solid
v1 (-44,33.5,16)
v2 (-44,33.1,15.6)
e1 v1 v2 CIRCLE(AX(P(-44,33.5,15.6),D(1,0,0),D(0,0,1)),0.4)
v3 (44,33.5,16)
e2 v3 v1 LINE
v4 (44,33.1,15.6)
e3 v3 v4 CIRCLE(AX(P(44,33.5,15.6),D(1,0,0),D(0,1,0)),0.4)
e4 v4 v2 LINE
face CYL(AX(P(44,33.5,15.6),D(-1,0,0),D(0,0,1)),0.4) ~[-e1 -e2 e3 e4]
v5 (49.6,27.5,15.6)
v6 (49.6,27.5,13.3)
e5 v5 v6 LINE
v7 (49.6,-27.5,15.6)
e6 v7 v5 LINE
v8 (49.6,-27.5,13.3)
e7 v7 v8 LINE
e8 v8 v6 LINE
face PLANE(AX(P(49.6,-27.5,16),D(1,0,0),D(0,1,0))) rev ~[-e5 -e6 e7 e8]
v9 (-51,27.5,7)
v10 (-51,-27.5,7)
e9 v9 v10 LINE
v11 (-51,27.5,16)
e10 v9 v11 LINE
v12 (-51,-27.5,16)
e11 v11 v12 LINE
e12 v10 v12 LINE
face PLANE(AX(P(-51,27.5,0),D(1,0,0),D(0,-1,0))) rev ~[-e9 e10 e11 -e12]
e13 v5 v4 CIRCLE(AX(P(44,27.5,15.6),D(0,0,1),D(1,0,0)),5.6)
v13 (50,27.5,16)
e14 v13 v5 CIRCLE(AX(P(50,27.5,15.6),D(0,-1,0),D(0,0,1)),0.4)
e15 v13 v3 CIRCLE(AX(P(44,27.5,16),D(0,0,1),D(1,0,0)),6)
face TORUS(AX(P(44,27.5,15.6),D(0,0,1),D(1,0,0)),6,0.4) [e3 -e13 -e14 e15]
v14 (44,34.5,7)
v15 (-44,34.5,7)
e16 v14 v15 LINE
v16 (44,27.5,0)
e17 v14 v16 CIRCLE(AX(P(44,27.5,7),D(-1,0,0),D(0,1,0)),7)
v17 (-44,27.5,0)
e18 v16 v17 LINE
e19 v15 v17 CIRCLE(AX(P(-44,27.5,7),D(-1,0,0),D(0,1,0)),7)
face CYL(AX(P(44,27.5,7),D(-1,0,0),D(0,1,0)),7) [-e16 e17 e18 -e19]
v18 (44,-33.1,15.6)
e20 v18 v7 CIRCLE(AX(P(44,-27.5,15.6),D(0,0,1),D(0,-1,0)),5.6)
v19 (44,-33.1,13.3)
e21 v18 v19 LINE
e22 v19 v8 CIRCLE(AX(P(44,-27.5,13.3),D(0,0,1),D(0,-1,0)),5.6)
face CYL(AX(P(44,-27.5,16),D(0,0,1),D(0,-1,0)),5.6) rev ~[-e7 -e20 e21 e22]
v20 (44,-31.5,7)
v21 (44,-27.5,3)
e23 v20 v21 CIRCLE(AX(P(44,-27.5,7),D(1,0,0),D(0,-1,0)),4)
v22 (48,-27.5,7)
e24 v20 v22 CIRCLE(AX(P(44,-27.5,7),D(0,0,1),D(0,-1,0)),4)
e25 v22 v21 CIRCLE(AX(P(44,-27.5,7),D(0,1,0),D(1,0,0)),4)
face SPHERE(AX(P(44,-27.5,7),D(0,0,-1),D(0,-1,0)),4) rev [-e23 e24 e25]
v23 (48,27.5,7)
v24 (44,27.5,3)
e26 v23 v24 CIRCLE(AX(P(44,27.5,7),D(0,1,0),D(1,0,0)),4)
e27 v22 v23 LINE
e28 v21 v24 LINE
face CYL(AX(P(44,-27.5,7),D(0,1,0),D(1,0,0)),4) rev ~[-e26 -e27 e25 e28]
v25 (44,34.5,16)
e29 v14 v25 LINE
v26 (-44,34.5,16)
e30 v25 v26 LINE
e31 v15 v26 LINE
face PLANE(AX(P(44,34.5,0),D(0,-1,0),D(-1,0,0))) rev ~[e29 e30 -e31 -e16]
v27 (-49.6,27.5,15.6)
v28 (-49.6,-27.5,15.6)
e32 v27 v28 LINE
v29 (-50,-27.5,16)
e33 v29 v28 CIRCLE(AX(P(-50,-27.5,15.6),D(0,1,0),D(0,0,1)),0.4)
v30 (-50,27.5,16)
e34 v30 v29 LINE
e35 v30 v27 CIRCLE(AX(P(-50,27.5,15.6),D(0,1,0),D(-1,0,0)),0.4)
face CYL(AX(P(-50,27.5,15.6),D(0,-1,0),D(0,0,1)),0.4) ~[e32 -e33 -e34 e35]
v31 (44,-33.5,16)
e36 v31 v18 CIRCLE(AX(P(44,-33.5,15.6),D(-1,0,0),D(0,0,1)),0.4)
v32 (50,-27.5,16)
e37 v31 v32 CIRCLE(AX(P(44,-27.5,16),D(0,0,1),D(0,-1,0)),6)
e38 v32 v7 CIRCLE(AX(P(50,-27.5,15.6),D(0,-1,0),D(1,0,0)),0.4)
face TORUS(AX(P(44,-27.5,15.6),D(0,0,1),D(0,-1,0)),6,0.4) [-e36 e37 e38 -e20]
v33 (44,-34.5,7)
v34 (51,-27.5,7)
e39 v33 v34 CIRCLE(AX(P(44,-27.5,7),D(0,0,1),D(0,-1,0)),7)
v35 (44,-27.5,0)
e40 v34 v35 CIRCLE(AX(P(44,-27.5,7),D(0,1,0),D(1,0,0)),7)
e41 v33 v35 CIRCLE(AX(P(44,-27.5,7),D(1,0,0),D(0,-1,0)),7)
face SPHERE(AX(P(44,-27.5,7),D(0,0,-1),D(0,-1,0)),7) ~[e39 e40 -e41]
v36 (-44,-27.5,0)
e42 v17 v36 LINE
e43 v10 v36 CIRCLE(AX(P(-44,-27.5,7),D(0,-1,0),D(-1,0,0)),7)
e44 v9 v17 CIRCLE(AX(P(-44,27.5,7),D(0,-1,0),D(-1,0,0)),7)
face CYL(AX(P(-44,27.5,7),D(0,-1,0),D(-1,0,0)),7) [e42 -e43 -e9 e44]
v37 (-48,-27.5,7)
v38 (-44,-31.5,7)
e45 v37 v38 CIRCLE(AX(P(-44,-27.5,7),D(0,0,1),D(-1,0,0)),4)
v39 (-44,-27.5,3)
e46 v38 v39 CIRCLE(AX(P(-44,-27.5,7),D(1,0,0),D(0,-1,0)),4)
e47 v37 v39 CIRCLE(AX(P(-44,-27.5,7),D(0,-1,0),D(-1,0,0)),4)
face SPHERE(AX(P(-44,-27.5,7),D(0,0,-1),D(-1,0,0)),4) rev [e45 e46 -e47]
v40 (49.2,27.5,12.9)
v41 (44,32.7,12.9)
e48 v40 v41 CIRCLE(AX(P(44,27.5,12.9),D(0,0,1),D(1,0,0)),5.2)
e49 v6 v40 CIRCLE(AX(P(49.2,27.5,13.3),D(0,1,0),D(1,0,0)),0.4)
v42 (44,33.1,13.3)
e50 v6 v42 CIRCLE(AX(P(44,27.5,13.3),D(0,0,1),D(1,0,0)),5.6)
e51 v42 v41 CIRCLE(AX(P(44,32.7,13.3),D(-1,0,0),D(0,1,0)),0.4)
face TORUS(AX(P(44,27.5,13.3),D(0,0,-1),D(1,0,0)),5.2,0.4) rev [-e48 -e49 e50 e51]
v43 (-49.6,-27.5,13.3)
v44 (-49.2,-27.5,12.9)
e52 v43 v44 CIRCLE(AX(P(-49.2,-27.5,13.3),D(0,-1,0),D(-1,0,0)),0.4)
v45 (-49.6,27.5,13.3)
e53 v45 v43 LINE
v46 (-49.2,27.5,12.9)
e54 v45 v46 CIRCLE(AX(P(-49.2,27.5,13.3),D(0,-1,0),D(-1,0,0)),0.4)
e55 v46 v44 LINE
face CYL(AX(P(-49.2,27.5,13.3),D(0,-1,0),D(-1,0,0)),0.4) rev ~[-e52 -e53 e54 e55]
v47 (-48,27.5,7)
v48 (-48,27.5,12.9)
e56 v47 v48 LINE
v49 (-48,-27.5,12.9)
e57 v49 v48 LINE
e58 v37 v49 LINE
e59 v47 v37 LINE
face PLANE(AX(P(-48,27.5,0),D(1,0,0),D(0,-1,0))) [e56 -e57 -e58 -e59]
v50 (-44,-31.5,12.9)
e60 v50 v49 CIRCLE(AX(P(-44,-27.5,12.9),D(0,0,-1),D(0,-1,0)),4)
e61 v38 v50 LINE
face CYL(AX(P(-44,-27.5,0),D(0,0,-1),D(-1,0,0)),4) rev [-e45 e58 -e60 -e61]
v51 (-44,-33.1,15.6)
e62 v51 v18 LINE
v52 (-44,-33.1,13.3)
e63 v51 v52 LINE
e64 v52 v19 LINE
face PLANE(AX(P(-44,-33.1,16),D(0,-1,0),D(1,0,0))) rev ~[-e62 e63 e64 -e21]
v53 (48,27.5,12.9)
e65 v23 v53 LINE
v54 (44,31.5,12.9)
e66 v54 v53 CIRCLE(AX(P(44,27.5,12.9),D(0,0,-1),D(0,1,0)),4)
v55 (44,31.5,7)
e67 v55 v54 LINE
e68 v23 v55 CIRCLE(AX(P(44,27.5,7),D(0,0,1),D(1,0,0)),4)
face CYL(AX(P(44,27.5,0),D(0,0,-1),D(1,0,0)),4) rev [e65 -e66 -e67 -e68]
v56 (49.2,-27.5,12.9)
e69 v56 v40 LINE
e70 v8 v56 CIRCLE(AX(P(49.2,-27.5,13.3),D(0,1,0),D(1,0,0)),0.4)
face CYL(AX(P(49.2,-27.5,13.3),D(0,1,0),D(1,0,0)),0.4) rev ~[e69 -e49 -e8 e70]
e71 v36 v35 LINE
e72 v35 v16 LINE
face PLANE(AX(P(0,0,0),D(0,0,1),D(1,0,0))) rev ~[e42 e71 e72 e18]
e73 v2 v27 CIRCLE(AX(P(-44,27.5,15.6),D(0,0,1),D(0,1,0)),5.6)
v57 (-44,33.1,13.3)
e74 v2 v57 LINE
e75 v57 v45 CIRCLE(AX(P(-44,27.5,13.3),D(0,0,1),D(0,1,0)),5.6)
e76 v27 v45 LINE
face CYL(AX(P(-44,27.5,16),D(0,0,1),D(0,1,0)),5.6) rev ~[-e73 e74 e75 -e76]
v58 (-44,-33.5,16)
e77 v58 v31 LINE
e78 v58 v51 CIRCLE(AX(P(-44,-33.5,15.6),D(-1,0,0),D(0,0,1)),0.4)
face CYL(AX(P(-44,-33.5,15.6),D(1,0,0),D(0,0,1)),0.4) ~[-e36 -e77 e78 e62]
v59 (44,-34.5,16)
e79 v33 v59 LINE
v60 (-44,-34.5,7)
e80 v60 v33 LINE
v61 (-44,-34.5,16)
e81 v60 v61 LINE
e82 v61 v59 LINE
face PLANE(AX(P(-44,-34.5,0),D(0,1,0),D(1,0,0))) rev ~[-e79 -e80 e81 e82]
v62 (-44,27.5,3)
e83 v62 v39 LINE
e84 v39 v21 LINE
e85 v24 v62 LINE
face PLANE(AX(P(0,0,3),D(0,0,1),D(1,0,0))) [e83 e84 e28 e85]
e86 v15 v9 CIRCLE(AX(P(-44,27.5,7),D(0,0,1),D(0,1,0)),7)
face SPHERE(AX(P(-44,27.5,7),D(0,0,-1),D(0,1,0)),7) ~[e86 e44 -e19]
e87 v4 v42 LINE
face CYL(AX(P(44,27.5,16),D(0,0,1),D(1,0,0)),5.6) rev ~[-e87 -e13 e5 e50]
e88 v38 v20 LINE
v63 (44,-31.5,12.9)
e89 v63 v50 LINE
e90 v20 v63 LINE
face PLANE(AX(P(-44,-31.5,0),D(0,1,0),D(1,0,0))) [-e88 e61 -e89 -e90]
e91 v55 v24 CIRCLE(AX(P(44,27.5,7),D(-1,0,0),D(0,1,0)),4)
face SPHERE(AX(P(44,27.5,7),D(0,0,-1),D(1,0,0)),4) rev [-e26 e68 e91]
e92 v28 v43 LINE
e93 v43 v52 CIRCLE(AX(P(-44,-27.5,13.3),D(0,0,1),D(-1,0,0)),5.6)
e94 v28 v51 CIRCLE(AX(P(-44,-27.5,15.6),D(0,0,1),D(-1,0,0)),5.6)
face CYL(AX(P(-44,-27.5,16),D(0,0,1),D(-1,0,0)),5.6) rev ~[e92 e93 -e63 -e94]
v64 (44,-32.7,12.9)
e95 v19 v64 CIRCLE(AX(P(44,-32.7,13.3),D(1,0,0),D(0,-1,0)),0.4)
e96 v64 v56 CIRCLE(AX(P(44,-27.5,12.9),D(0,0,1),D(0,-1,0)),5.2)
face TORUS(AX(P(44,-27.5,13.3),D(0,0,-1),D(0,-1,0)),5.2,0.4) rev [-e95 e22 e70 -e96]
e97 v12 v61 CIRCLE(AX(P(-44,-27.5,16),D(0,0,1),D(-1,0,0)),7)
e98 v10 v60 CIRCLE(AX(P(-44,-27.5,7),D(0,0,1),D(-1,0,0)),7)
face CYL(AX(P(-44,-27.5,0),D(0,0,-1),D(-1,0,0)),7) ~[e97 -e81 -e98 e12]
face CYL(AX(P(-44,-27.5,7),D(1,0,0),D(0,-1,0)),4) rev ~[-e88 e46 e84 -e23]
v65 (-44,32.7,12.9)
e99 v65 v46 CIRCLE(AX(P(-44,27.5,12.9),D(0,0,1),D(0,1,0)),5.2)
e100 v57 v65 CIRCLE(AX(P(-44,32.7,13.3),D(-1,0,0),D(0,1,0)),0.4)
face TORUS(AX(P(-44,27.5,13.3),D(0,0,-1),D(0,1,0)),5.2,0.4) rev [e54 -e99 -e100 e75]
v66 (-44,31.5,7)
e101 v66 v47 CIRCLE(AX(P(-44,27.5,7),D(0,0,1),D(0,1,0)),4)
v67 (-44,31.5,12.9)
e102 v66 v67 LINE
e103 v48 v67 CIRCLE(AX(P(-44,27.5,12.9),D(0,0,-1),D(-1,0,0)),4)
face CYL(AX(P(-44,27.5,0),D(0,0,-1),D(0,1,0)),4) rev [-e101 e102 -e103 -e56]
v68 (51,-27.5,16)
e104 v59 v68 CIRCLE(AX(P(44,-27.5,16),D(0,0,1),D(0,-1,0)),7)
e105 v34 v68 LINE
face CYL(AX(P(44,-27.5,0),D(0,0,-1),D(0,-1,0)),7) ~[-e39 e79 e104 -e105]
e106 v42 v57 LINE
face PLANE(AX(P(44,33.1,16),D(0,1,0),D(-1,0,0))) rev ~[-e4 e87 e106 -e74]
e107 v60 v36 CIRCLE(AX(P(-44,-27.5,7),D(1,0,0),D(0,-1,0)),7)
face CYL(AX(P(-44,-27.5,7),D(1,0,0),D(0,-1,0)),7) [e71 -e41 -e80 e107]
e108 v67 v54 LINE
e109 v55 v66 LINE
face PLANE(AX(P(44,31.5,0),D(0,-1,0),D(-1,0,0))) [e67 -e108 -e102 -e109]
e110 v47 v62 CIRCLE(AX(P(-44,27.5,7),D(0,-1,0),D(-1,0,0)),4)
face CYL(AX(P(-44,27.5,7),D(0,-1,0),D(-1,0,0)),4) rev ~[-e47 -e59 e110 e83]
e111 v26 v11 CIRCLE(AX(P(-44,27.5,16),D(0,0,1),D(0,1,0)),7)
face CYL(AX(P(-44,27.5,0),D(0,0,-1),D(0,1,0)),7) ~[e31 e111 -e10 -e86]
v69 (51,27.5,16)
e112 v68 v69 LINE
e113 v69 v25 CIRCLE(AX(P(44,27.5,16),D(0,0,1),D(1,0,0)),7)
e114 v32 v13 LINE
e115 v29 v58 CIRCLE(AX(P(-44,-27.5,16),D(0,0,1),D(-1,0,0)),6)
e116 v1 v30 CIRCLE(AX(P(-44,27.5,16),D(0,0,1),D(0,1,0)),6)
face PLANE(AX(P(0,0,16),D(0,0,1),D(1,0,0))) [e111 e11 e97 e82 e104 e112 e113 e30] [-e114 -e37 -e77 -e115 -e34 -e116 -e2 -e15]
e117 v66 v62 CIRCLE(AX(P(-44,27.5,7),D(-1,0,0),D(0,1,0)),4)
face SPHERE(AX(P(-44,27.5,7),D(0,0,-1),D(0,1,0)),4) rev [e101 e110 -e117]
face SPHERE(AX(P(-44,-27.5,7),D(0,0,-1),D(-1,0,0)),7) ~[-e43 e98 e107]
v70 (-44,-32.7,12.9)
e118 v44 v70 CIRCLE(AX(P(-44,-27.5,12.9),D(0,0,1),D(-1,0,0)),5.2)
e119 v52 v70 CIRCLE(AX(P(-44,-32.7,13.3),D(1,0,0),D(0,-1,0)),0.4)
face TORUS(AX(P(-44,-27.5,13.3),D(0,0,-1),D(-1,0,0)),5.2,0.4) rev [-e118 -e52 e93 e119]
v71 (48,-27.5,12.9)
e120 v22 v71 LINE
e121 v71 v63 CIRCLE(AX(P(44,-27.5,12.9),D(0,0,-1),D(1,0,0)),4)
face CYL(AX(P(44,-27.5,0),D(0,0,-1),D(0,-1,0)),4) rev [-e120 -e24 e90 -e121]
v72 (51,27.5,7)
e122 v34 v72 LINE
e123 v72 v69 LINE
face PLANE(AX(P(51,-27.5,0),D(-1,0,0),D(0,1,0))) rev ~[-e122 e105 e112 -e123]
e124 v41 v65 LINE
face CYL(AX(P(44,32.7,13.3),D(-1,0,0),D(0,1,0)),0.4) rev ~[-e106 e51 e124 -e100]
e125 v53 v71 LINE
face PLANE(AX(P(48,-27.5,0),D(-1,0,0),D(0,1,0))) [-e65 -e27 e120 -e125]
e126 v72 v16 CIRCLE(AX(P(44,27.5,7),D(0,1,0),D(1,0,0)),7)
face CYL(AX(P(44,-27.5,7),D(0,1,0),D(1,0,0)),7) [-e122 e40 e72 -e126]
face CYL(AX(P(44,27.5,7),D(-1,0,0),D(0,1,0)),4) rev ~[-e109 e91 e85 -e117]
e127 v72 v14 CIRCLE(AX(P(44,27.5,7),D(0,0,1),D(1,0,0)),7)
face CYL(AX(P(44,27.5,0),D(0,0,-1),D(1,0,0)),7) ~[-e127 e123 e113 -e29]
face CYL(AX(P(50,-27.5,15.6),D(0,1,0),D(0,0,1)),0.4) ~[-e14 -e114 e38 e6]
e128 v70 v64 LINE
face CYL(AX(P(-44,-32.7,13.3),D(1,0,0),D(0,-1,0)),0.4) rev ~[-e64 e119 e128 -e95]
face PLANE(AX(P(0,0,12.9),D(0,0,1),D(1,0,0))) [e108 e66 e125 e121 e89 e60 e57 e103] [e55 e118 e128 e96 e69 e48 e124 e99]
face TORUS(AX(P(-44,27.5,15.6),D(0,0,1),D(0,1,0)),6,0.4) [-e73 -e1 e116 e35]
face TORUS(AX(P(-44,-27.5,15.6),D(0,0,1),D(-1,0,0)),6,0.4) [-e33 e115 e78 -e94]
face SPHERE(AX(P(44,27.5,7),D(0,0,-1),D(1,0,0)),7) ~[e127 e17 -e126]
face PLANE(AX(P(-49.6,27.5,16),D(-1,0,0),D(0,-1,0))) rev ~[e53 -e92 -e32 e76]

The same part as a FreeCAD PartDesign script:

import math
import FreeCAD as App
import Part
import Sketcher
from FreeCAD import Vector
Q = App.Units.Quantity


def edges_at(feature, points):
    """Names of the edges that pass closest to the given points."""
    edges = feature.Shape.Edges
    near = lambda p: min(range(len(edges)), key=lambda i: edges[i].distToShape(Part.Vertex(*p))[0])
    return sorted({f"Edge{near(p) + 1}" for p in points})


def faces_at(feature, points):
    """Names of the faces that lie closest to the given points."""
    faces = feature.Shape.Faces
    near = lambda p: min(range(len(faces)), key=lambda i: faces[i].distToShape(Part.Vertex(*p))[0])
    return sorted({f"Face{near(p) + 1}" for p in points})

doc = App.newDocument("Part")
body = doc.addObject("PartDesign::Body", "Body")

sketch1 = body.newObject("Sketcher::SketchObject", "Sketch")
sketch1.AttachmentSupport = (doc.getObject("XY_Plane"), [""])
sketch1.MapMode = "FlatFace"
sketch1.addGeometry(Part.LineSegment(Vector(-44, -34, 0), Vector(44, -34, 0)), False)
sketch1.addGeometry(Part.ArcOfCircle(Part.Circle(Vector(44, -28, 0), Vector(0, 0, 1), 7), math.radians(-90), math.radians(0)), False)
sketch1.addGeometry(Part.LineSegment(Vector(51, -28, 0), Vector(51, 28, 0)), False)
sketch1.addGeometry(Part.ArcOfCircle(Part.Circle(Vector(44, 28, 0), Vector(0, 0, 1), 7), math.radians(0), math.radians(90)), False)
sketch1.addGeometry(Part.LineSegment(Vector(44, 34, 0), Vector(-44, 34, 0)), False)
sketch1.addGeometry(Part.ArcOfCircle(Part.Circle(Vector(-44, 28, 0), Vector(0, 0, 1), 7), math.radians(90), math.radians(180)), False)
sketch1.addGeometry(Part.LineSegment(Vector(-51, 28, 0), Vector(-51, -28, 0)), False)
sketch1.addGeometry(Part.ArcOfCircle(Part.Circle(Vector(-44, -28, 0), Vector(0, 0, 1), 7), math.radians(180), math.radians(270)), False)
sketch1.addConstraint(Sketcher.Constraint("Tangent", 0, 2, 1, 1))
sketch1.addConstraint(Sketcher.Constraint("Tangent", 1, 2, 2, 1))
sketch1.addConstraint(Sketcher.Constraint("Tangent", 2, 2, 3, 1))
sketch1.addConstraint(Sketcher.Constraint("Tangent", 3, 2, 4, 1))
sketch1.addConstraint(Sketcher.Constraint("Tangent", 4, 2, 5, 1))
sketch1.addConstraint(Sketcher.Constraint("Tangent", 5, 2, 6, 1))
sketch1.addConstraint(Sketcher.Constraint("Tangent", 6, 2, 7, 1))
sketch1.addConstraint(Sketcher.Constraint("Tangent", 7, 2, 0, 1))
sketch1.addConstraint(Sketcher.Constraint("Horizontal", 0))
sketch1.addConstraint(Sketcher.Constraint("Vertical", 2))
sketch1.addConstraint(Sketcher.Constraint("Horizontal", 4))
sketch1.addConstraint(Sketcher.Constraint("Vertical", 6))
sketch1.addConstraint(Sketcher.Constraint("Equal", 1, 3))
sketch1.addConstraint(Sketcher.Constraint("Equal", 3, 5))
sketch1.addConstraint(Sketcher.Constraint("Equal", 5, 7))
sketch1.addConstraint(Sketcher.Constraint("Symmetric", 1, 3, 5, 3, -1, 1))
sketch1.addConstraint(Sketcher.Constraint("Radius", 1, Q("7 mm")))
sketch1.addConstraint(Sketcher.Constraint("DistanceX", 0, 1, 0, 2, Q("88 mm")))
sketch1.addConstraint(Sketcher.Constraint("DistanceY", 2, 1, 2, 2, Q("55 mm")))
pad1 = body.newObject("PartDesign::Pad", "Pad")
pad1.Profile = sketch1
pad1.Length = 16
doc.recompute()

fillet = body.newObject("PartDesign::Fillet", "Fillet")
fillet.Base = (pad1, edges_at(pad1, [(0, -34.5, 0)]))
fillet.Radius = 7
doc.recompute()

thickness = body.newObject("PartDesign::Thickness", "Thickness")
thickness.Base = (fillet, faces_at(fillet, [(0, 0, 16)]))
thickness.Value = 3
thickness.Reversed = True
thickness.Join = "Arc"

sketch2 = body.newObject("Sketcher::SketchObject", "Sketch001")
sketch2.AttachmentSupport = (doc.getObject("XY_Plane"), [""])
sketch2.MapMode = "FlatFace"
sketch2.AttachmentOffset = App.Placement(Vector(0, 0, 16), App.Rotation())
sketch2.addGeometry(Part.LineSegment(Vector(49.6, -27.5, 0), Vector(49.6, 27.5, 0)), False)
sketch2.addGeometry(Part.ArcOfCircle(Part.Circle(Vector(44, 27.5, 0), Vector(0, 0, 1), 5.6), math.radians(0), math.radians(90)), False)
sketch2.addGeometry(Part.LineSegment(Vector(44, 33.1, 0), Vector(-44, 33.1, 0)), False)
sketch2.addGeometry(Part.ArcOfCircle(Part.Circle(Vector(-44, 27.5, 0), Vector(0, 0, 1), 5.6), math.radians(90), math.radians(180)), False)
sketch2.addGeometry(Part.LineSegment(Vector(-49.6, 27.5, 0), Vector(-49.6, -27.5, 0)), False)
sketch2.addGeometry(Part.ArcOfCircle(Part.Circle(Vector(-44, -27.5, 0), Vector(0, 0, 1), 5.6), math.radians(180), math.radians(270)), False)
sketch2.addGeometry(Part.LineSegment(Vector(-44, -33.1, 0), Vector(44, -33.1, 0)), False)
sketch2.addGeometry(Part.ArcOfCircle(Part.Circle(Vector(44, -27.5, 0), Vector(0, 0, 1), 5.6), math.radians(-90), math.radians(0)), False)
sketch2.addGeometry(Part.ArcOfCircle(Part.Circle(Vector(-44, 27.5, 0), Vector(0, 0, 1), 4), math.radians(90), math.radians(180)), False)
sketch2.addGeometry(Part.LineSegment(Vector(-44, 31.5, 0), Vector(44, 31.5, 0)), False)
sketch2.addGeometry(Part.ArcOfCircle(Part.Circle(Vector(44, 27.5, 0), Vector(0, 0, 1), 4), math.radians(0), math.radians(90)), False)
sketch2.addGeometry(Part.LineSegment(Vector(48, 27.5, 0), Vector(48, -27.5, 0)), False)
sketch2.addGeometry(Part.ArcOfCircle(Part.Circle(Vector(44, -27.5, 0), Vector(0, 0, 1), 4), math.radians(-90), math.radians(0)), False)
sketch2.addGeometry(Part.LineSegment(Vector(44, -31.5, 0), Vector(-44, -31.5, 0)), False)
sketch2.addGeometry(Part.ArcOfCircle(Part.Circle(Vector(-44, -27.5, 0), Vector(0, 0, 1), 4), math.radians(180), math.radians(270)), False)
sketch2.addGeometry(Part.LineSegment(Vector(-48, -27.5, 0), Vector(-48, 27.5, 0)), False)
sketch2.addConstraint(Sketcher.Constraint("Tangent", 0, 2, 1, 1))
sketch2.addConstraint(Sketcher.Constraint("Tangent", 1, 2, 2, 1))
sketch2.addConstraint(Sketcher.Constraint("Tangent", 2, 2, 3, 1))
sketch2.addConstraint(Sketcher.Constraint("Tangent", 3, 2, 4, 1))
sketch2.addConstraint(Sketcher.Constraint("Tangent", 4, 2, 5, 1))
sketch2.addConstraint(Sketcher.Constraint("Tangent", 5, 2, 6, 1))
sketch2.addConstraint(Sketcher.Constraint("Tangent", 6, 2, 7, 1))
sketch2.addConstraint(Sketcher.Constraint("Tangent", 7, 2, 0, 1))
sketch2.addConstraint(Sketcher.Constraint("Tangent", 8, 1, 9, 1))
sketch2.addConstraint(Sketcher.Constraint("Tangent", 9, 2, 10, 2))
sketch2.addConstraint(Sketcher.Constraint("Tangent", 10, 1, 11, 1))
sketch2.addConstraint(Sketcher.Constraint("Tangent", 11, 2, 12, 2))
sketch2.addConstraint(Sketcher.Constraint("Tangent", 12, 1, 13, 1))
sketch2.addConstraint(Sketcher.Constraint("Tangent", 13, 2, 14, 2))
sketch2.addConstraint(Sketcher.Constraint("Tangent", 14, 1, 15, 1))
sketch2.addConstraint(Sketcher.Constraint("Tangent", 15, 2, 8, 2))
sketch2.addConstraint(Sketcher.Constraint("Vertical", 0))
sketch2.addConstraint(Sketcher.Constraint("Horizontal", 2))
sketch2.addConstraint(Sketcher.Constraint("Vertical", 4))
sketch2.addConstraint(Sketcher.Constraint("Horizontal", 6))
sketch2.addConstraint(Sketcher.Constraint("Horizontal", 9))
sketch2.addConstraint(Sketcher.Constraint("Vertical", 11))
sketch2.addConstraint(Sketcher.Constraint("Horizontal", 13))
sketch2.addConstraint(Sketcher.Constraint("Vertical", 15))
sketch2.addConstraint(Sketcher.Constraint("Coincident", 8, 3, 3, 3))
sketch2.addConstraint(Sketcher.Constraint("Coincident", 10, 3, 1, 3))
sketch2.addConstraint(Sketcher.Constraint("Coincident", 12, 3, 7, 3))
sketch2.addConstraint(Sketcher.Constraint("Equal", 1, 3))
sketch2.addConstraint(Sketcher.Constraint("Equal", 3, 5))
sketch2.addConstraint(Sketcher.Constraint("Equal", 5, 7))
sketch2.addConstraint(Sketcher.Constraint("Equal", 12, 14))
sketch2.addConstraint(Sketcher.Constraint("Symmetric", 1, 3, 5, 3, -1, 1))
sketch2.addConstraint(Sketcher.Constraint("Radius", 8, Q("4 mm")))
sketch2.addConstraint(Sketcher.Constraint("Radius", 1, Q("5.6 mm")))
sketch2.addConstraint(Sketcher.Constraint("DistanceX", 2, 2, 2, 1, Q("88 mm")))
sketch2.addConstraint(Sketcher.Constraint("DistanceY", 0, 1, 0, 2, Q("55 mm")))
pocket1 = body.newObject("PartDesign::Pocket", "Pocket")
pocket1.Profile = sketch2
pocket1.Length = 3.1
doc.recompute()

fillet2 = body.newObject("PartDesign::Fillet", "Fillet001")
fillet2.Base = (pocket1, edges_at(pocket1, [(0, 33.1, 12.9), (0, -33.1, 16)]))
fillet2.Radius = 0.4

doc.recompute()
